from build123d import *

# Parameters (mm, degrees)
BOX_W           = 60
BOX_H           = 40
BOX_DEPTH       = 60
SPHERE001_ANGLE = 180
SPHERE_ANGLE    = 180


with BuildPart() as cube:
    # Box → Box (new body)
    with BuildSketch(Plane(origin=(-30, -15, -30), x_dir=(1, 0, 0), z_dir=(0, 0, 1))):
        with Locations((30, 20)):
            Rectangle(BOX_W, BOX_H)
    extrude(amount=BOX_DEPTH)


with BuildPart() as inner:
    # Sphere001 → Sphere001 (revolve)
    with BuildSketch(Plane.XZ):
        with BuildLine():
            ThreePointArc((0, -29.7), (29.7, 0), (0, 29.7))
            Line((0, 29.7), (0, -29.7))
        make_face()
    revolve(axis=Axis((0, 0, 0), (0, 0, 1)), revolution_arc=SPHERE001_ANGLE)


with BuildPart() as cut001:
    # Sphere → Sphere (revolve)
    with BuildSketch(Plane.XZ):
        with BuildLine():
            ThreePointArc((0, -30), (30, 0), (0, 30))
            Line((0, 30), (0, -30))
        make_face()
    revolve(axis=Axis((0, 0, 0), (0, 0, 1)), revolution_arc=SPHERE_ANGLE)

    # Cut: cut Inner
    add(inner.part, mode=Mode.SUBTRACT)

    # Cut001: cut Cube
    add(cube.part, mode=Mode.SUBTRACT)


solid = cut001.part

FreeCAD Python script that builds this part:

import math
import FreeCAD as App
import Part
import Sketcher

V = App.Vector


def add_polygon(sketch, points):
    """Adds a closed chain of lines whose ends are joined by coincident constraints."""
    first, n = sketch.GeometryCount, len(points)
    for a, b in zip(points, points[1:] + points[:1]):
        sketch.addGeometry(Part.LineSegment(App.Vector(*a, 0), App.Vector(*b, 0)), False)
    for i in range(n):
        sketch.addConstraint(Sketcher.Constraint("Coincident", first + i, 2, first + (i + 1) % n, 1))

doc = App.newDocument("Part")
body = doc.addObject("PartDesign::Body", "Body")

sketch1 = body.newObject("Sketcher::SketchObject", "Sketch")
sketch1.AttachmentSupport = (doc.getObject("XY_Plane"), [""])
sketch1.MapMode = "FlatFace"
sketch1.AttachmentOffset = App.Placement(V(0, 0, -30), App.Rotation())
add_polygon(sketch1, [(-30, 25), (-30, -15), (30, -15), (30, 25)])
sketch1.addConstraint([
    Sketcher.Constraint("Vertical", 0),
    Sketcher.Constraint("Horizontal", 1),
    Sketcher.Constraint("Vertical", 2),
    Sketcher.Constraint("Horizontal", 3),
    Sketcher.Constraint("DistanceX", 1, 1, 1, 2, 60.0),
    Sketcher.Constraint("DistanceY", 0, 2, 0, 1, 40.0),
    Sketcher.Constraint("DistanceX", 0, 2, -1, 1, 30.0),
    Sketcher.Constraint("DistanceY", 0, 2, -1, 1, 15.0),
])
pad1 = body.newObject("PartDesign::Pad", "Pad")
pad1.Profile = sketch1
pad1.Length = 60
body2 = doc.addObject("PartDesign::Body", "Body001")

sketch2 = body2.newObject("Sketcher::SketchObject", "Sketch001")
sketch2.AttachmentSupport = (doc.getObject("XZ_Plane001"), [""])
sketch2.MapMode = "FlatFace"
sketch2.addGeometry([
    Part.ArcOfCircle(Part.Circle(V(0, 0, 0), V(0, 0, 1), 30), math.radians(-90), math.radians(90)),
    Part.LineSegment(V(0, 30, 0), V(0, -30, 0)),
], False)
sketch2.addConstraint([
    Sketcher.Constraint("Coincident", 0, 1, 1, 2),
    Sketcher.Constraint("Coincident", 1, 1, 0, 2),
    Sketcher.Constraint("Vertical", 1),
    Sketcher.Constraint("Coincident", 0, 3, -1, 1),
    Sketcher.Constraint("PointOnObject", 0, 1, -2),
    Sketcher.Constraint("Radius", 0, 29.7),
])
revolution = body2.newObject("PartDesign::Revolution", "Revolution")
revolution.Profile = sketch2
revolution.ReferenceAxis = (sketch2, ["V_Axis"])
revolution.Angle = 180
body3 = doc.addObject("PartDesign::Body", "Body002")

sketch3 = body3.newObject("Sketcher::SketchObject", "Sketch002")
sketch3.AttachmentSupport = (doc.getObject("XZ_Plane002"), [""])
sketch3.MapMode = "FlatFace"
sketch3.addGeometry([
    Part.ArcOfCircle(Part.Circle(V(0, 0, 0), V(0, 0, 1), 30), math.radians(-90), math.radians(90)),
    Part.LineSegment(V(0, 30, 0), V(0, -30, 0)),
], False)
sketch3.addConstraint([
    Sketcher.Constraint("Coincident", 0, 1, 1, 2),
    Sketcher.Constraint("Coincident", 1, 1, 0, 2),
    Sketcher.Constraint("Vertical", 1),
    Sketcher.Constraint("Coincident", 0, 3, -1, 1),
    Sketcher.Constraint("PointOnObject", 0, 1, -2),
    Sketcher.Constraint("Radius", 0, 30.0),
])
revolution2 = body3.newObject("PartDesign::Revolution", "Revolution001")
revolution2.Profile = sketch3
revolution2.ReferenceAxis = (sketch3, ["V_Axis"])
revolution2.Angle = 180
doc.recompute()

boolean = body3.newObject("PartDesign::Boolean", "Boolean")
boolean.Type = "Cut"
boolean.addObjects([body2])
doc.recompute()

boolean2 = body3.newObject("PartDesign::Boolean", "Boolean001")
boolean2.Type = "Cut"
boolean2.addObjects([body])

doc.recompute()
